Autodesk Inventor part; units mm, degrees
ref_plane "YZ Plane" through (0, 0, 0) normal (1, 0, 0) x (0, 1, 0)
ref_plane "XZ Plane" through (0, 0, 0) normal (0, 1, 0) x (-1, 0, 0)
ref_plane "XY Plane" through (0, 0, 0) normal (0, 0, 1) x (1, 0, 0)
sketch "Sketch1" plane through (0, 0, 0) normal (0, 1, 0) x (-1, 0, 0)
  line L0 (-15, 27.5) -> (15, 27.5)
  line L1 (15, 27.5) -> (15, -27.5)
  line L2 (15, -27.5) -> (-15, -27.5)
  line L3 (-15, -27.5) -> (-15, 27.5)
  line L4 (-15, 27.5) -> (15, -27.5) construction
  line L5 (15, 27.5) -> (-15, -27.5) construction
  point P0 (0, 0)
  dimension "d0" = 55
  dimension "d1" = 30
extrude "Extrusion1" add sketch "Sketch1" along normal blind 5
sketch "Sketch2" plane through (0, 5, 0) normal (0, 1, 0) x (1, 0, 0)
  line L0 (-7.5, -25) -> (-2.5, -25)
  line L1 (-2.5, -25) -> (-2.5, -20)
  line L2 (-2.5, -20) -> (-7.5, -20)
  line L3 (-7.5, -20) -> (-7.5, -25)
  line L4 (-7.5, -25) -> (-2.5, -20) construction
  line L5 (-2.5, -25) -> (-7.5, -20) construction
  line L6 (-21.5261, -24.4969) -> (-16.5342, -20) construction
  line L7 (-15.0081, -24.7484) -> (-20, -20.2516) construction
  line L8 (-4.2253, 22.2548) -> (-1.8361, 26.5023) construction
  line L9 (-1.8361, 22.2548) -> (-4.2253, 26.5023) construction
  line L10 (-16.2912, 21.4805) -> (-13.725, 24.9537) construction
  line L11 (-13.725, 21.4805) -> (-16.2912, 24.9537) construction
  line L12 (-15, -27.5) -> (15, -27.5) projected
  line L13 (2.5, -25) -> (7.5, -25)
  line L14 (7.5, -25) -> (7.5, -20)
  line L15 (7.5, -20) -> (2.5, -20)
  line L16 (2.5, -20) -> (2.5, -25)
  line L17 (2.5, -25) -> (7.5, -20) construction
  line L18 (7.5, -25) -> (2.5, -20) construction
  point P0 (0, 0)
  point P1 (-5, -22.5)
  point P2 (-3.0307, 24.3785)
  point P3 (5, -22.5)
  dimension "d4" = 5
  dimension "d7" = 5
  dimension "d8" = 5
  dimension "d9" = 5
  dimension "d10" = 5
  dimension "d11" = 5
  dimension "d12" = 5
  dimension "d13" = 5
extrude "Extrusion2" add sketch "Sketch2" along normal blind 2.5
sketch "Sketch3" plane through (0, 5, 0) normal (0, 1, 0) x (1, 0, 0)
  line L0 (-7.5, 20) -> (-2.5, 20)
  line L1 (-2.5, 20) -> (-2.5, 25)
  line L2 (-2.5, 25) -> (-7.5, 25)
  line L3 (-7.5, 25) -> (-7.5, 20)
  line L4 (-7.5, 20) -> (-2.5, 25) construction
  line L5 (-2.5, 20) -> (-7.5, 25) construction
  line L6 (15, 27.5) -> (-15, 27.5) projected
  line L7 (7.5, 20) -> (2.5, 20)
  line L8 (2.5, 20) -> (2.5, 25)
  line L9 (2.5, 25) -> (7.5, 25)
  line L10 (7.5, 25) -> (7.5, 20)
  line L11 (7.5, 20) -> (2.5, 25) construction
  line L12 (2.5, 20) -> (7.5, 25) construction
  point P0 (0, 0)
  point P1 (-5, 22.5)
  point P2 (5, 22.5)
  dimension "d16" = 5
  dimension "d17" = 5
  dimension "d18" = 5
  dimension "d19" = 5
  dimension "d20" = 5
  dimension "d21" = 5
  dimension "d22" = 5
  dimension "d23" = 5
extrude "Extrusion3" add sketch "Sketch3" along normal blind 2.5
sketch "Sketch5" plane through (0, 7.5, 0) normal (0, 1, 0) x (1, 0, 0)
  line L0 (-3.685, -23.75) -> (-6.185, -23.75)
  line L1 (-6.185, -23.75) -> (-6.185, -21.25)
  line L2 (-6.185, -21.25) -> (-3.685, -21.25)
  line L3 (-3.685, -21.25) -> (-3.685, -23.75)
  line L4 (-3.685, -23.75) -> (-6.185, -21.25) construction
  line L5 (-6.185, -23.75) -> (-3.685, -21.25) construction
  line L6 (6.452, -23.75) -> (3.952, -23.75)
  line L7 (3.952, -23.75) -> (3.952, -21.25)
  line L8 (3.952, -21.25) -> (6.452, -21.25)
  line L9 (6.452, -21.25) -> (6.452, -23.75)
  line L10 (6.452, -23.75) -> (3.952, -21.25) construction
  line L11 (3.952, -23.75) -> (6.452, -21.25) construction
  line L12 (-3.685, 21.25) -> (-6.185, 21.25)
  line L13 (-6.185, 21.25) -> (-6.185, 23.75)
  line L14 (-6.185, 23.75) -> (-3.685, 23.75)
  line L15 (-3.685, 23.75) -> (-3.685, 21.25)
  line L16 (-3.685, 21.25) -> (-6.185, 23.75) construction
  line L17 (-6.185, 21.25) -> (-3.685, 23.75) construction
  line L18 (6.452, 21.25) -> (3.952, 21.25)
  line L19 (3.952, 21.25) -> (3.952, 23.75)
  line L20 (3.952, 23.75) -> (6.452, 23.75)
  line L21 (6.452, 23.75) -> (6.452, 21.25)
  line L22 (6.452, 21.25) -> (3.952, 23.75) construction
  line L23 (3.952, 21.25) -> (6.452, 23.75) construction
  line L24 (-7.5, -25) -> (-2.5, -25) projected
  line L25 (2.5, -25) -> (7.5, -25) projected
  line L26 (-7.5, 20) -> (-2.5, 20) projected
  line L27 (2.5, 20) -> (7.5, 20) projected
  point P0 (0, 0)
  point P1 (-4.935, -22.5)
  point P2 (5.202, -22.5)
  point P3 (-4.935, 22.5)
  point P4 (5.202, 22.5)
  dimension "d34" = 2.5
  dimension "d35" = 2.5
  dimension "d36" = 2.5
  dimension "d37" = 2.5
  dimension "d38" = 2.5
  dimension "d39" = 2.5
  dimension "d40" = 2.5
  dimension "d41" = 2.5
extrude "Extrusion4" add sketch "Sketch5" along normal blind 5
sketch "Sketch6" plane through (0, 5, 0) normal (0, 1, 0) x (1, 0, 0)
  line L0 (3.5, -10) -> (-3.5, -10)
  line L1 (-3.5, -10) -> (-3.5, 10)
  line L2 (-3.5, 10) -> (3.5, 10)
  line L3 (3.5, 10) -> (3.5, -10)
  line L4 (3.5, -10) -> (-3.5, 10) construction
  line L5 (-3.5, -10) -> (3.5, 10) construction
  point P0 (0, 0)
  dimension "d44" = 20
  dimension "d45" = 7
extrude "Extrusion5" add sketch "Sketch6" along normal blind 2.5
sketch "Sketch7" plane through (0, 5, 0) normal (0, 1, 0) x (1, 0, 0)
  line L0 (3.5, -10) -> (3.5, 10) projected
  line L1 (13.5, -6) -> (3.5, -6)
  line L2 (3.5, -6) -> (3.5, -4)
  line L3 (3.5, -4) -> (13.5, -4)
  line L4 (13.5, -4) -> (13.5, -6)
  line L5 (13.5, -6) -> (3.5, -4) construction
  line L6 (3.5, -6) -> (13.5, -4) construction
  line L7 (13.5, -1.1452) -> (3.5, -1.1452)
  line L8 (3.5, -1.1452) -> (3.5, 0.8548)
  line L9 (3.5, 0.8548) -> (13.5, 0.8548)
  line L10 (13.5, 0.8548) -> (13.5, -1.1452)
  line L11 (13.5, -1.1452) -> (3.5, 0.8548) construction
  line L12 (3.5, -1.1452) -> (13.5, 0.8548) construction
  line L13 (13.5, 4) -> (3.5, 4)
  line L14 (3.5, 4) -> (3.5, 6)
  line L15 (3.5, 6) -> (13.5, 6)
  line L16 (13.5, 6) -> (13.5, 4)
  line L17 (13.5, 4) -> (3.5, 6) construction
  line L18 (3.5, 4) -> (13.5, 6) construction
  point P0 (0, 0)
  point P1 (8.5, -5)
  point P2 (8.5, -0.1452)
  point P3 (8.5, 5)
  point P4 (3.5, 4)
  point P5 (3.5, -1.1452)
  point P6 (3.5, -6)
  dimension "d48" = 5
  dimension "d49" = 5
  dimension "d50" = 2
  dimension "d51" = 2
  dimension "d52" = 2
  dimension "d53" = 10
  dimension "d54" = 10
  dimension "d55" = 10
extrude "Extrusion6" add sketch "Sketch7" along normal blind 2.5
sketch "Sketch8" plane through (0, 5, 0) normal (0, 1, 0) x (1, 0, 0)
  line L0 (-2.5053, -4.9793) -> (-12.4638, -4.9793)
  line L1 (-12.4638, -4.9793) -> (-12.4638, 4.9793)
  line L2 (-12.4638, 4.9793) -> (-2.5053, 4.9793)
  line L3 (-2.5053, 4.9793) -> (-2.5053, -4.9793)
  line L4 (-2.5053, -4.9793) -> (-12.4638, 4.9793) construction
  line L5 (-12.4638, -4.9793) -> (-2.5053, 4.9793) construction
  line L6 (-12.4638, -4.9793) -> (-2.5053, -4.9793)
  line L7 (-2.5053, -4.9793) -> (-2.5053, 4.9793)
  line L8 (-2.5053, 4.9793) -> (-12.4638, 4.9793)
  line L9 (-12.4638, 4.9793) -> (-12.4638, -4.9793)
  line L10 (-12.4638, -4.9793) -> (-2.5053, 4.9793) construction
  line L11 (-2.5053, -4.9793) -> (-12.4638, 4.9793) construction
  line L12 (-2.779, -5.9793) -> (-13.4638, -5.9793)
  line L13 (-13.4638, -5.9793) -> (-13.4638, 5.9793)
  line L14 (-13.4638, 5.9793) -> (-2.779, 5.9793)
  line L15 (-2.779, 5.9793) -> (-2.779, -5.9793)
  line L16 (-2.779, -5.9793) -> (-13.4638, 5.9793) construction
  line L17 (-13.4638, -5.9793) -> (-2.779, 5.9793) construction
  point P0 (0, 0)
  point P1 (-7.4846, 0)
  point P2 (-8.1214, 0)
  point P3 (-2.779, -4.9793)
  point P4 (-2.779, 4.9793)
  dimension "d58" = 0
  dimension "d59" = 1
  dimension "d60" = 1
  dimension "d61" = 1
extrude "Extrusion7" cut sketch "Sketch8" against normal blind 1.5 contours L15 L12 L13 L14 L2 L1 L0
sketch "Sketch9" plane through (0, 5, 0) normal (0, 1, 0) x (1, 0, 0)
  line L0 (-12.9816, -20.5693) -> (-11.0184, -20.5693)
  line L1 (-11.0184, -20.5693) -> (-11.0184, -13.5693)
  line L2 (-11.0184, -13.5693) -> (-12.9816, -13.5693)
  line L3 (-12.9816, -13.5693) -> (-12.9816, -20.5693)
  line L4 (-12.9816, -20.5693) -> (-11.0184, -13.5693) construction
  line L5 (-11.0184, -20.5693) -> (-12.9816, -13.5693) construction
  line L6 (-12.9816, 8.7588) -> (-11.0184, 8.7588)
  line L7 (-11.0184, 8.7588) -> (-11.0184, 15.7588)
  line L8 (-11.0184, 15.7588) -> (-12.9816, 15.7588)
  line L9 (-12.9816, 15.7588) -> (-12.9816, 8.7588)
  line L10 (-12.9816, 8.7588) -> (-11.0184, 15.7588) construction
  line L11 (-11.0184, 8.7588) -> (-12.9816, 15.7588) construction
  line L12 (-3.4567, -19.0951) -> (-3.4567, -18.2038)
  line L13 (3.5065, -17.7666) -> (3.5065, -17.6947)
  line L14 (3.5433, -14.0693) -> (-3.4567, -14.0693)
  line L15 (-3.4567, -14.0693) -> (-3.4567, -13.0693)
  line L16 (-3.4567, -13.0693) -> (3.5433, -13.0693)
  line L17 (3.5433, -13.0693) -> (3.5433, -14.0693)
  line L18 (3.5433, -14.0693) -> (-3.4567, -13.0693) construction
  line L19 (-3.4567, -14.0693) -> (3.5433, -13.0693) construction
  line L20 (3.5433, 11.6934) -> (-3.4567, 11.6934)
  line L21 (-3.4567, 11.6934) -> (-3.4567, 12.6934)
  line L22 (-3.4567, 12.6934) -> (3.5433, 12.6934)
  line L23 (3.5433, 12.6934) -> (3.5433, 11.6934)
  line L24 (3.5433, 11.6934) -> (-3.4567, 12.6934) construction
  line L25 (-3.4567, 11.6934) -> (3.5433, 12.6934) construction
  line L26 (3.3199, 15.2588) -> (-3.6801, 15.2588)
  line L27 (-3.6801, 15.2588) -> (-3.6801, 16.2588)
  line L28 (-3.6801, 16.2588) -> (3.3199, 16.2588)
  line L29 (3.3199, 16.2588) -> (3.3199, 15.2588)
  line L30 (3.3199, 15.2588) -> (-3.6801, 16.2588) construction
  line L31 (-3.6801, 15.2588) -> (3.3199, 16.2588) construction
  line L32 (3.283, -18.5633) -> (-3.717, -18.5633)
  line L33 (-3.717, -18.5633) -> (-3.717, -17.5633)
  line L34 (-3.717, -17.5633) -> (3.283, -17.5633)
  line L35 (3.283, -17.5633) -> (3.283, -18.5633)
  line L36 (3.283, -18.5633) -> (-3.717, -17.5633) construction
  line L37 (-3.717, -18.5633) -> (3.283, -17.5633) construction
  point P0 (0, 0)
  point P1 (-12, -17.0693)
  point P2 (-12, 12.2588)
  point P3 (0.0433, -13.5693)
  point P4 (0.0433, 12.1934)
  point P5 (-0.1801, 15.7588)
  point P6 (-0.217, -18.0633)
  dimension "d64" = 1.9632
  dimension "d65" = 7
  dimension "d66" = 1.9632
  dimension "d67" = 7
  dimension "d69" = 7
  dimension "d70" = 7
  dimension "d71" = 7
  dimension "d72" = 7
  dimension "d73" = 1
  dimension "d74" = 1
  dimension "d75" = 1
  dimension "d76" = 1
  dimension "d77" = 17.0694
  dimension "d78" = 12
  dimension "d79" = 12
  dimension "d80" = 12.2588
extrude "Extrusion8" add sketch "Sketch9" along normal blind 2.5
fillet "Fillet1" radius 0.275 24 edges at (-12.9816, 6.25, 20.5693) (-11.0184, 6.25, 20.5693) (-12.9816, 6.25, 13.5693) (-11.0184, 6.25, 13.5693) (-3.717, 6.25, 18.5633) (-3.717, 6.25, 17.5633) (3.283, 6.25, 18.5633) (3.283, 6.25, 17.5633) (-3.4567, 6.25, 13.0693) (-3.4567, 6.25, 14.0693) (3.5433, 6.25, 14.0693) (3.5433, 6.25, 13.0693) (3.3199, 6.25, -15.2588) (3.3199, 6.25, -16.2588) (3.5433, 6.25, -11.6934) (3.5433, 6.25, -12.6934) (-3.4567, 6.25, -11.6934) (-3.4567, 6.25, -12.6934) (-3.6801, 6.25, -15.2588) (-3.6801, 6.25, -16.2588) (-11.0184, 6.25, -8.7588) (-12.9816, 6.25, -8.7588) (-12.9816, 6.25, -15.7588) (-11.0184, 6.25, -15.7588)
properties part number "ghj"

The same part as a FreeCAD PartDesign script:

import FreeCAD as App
import Part
import Sketcher


def edges_at(feature, points):
    """Names of the edges that pass closest to the given points."""
    edges = feature.Shape.Edges
    near = lambda p: min(range(len(edges)), key=lambda i: edges[i].distToShape(Part.Vertex(*p))[0])
    return sorted({f"Edge{near(p) + 1}" for p in points})

doc = App.newDocument("Part")
params = doc.addObject("Spreadsheet::Sheet", "Params")
for row, (alias, value) in enumerate([
    ("sketch1_width", "30 mm"),
    ("sketch1_height", "55 mm"),
    ("pad1_length", "5 mm"),
    ("sketch2_width", "5 mm"),
    ("pad2_length", "2.5 mm"),
    ("sketch3_width", "5 mm"),
    ("pad3_length", "2.5 mm"),
    ("sketch4_width", "2.5 mm"),
    ("pad4_length", "5 mm"),
    ("sketch5_width", "7 mm"),
    ("sketch5_height", "20 mm"),
    ("pad5_length", "2.5 mm"),
    ("sketch6_width", "10 mm"),
    ("sketch6_height", "2 mm"),
    ("pad6_length", "2.5 mm"),
    ("sketch7_height", "1 mm"),
    ("pocket1_length", "1.5 mm"),
    ("sketch8_width", "7 mm"),
    ("sketch8_height", "1 mm"),
    ("pad7_length", "2.5 mm"),
    ("fillet_radius", "0.275 mm"),
], start=1):
    params.set(f"A{row}", alias)
    params.set(f"B{row}", "=" + value)
    params.setAlias(f"B{row}", alias)

body = doc.addObject("PartDesign::Body", "Body")

# Sketch on XZ plane
sketch1 = body.newObject("Sketcher::SketchObject", "Sketch")
sketch1.AttachmentSupport = (doc.getObject("XZ_Plane"), [""])
sketch1.MapMode = "FlatFace"
sketch1.addGeometry([
    Part.LineSegment(App.Vector(-15, 27.5, 0), App.Vector(15, 27.5, 0)),
    Part.LineSegment(App.Vector(15, 27.5, 0), App.Vector(15, -27.5, 0)),
    Part.LineSegment(App.Vector(15, -27.5, 0), App.Vector(-15, -27.5, 0)),
    Part.LineSegment(App.Vector(-15, -27.5, 0), App.Vector(-15, 27.5, 0)),
], False)
sketch1.addConstraint([
    Sketcher.Constraint("Coincident", 0, 2, 1, 1),
    Sketcher.Constraint("Coincident", 1, 2, 2, 1),
    Sketcher.Constraint("Coincident", 2, 2, 3, 1),
    Sketcher.Constraint("Coincident", 3, 2, 0, 1),
    Sketcher.Constraint("Horizontal", 0),
    Sketcher.Constraint("Vertical", 1),
    Sketcher.Constraint("Horizontal", 2),
    Sketcher.Constraint("Vertical", 3),
    Sketcher.Constraint("Symmetric", 0, 2, 2, 2, -1, 1),
    Sketcher.Constraint("DistanceX", 0, 1, 0, 2, 30.0),
    Sketcher.Constraint("DistanceY", 1, 2, 1, 1, 55.0),
])
sketch1.setExpression("Constraints[9]", "Params.sketch1_width")
sketch1.setExpression("Constraints[10]", "Params.sketch1_height")
pad1 = body.newObject("PartDesign::Pad", "Pad")
pad1.Profile = sketch1
pad1.setExpression("Length", "Params.pad1_length")
pad1.Reversed = True

# Sketch on XZ plane
sketch2 = body.newObject("Sketcher::SketchObject", "Sketch001")
sketch2.AttachmentSupport = (doc.getObject("XZ_Plane"), [""])
sketch2.MapMode = "FlatFace"
sketch2.AttachmentOffset = App.Placement(App.Vector(0, 0, -5), App.Rotation())
sketch2.addGeometry([
    Part.LineSegment(App.Vector(-7.5, 20, 0), App.Vector(-7.5, 25, 0)),  # 0
    Part.LineSegment(App.Vector(-7.5, 25, 0), App.Vector(-2.5, 25, 0)),  # 1
    Part.LineSegment(App.Vector(-2.5, 25, 0), App.Vector(-2.5, 20, 0)),  # 2
    Part.LineSegment(App.Vector(-2.5, 20, 0), App.Vector(-7.5, 20, 0)),  # 3
    Part.LineSegment(App.Vector(2.5, 20, 0), App.Vector(2.5, 25, 0)),  # 4
    Part.LineSegment(App.Vector(2.5, 25, 0), App.Vector(7.5, 25, 0)),  # 5
    Part.LineSegment(App.Vector(7.5, 25, 0), App.Vector(7.5, 20, 0)),  # 6
    Part.LineSegment(App.Vector(7.5, 20, 0), App.Vector(2.5, 20, 0)),  # 7
], False)
sketch2.addConstraint([
    Sketcher.Constraint("Coincident", 0, 2, 1, 1),
    Sketcher.Constraint("Coincident", 1, 2, 2, 1),
    Sketcher.Constraint("Coincident", 2, 2, 3, 1),
    Sketcher.Constraint("Coincident", 3, 2, 0, 1),
    Sketcher.Constraint("Coincident", 4, 2, 5, 1),
    Sketcher.Constraint("Coincident", 5, 2, 6, 1),
    Sketcher.Constraint("Coincident", 6, 2, 7, 1),
    Sketcher.Constraint("Coincident", 7, 2, 4, 1),
    Sketcher.Constraint("Vertical", 0),
    Sketcher.Constraint("Horizontal", 1),
    Sketcher.Constraint("Vertical", 2),
    Sketcher.Constraint("Horizontal", 3),
    Sketcher.Constraint("Vertical", 4),
    Sketcher.Constraint("Horizontal", 5),
    Sketcher.Constraint("Vertical", 6),
    Sketcher.Constraint("Horizontal", 7),
    Sketcher.Constraint("Symmetric", 1, 2, 4, 2, -2),
    Sketcher.Constraint("Symmetric", 3, 2, 6, 2, -2),
    Sketcher.Constraint("Equal", 7, 0),
    Sketcher.Constraint("DistanceX", 1, 1, 1, 2, 5.0),
    Sketcher.Constraint("DistanceX", 1, 2, 4, 2, 5.0),
    Sketcher.Constraint("DistanceY", -1, 1, 0, 2, 25.0),
])
sketch2.setExpression("Constraints[19]", "Params.sketch2_width")
pad2 = body.newObject("PartDesign::Pad", "Pad001")
pad2.Profile = sketch2
pad2.setExpression("Length", "Params.pad2_length")
pad2.Reversed = True

# Sketch on XZ plane
sketch3 = body.newObject("Sketcher::SketchObject", "Sketch002")
sketch3.AttachmentSupport = (doc.getObject("XZ_Plane"), [""])
sketch3.MapMode = "FlatFace"
sketch3.AttachmentOffset = App.Placement(App.Vector(0, 0, -5), App.Rotation())
sketch3.addGeometry([
    Part.LineSegment(App.Vector(-7.5, -25, 0), App.Vector(-7.5, -20, 0)),  # 0
    Part.LineSegment(App.Vector(-7.5, -20, 0), App.Vector(-2.5, -20, 0)),  # 1
    Part.LineSegment(App.Vector(-2.5, -20, 0), App.Vector(-2.5, -25, 0)),  # 2
    Part.LineSegment(App.Vector(-2.5, -25, 0), App.Vector(-7.5, -25, 0)),  # 3
    Part.LineSegment(App.Vector(2.5, -20, 0), App.Vector(7.5, -20, 0)),  # 4
    Part.LineSegment(App.Vector(7.5, -20, 0), App.Vector(7.5, -25, 0)),  # 5
    Part.LineSegment(App.Vector(7.5, -25, 0), App.Vector(2.5, -25, 0)),  # 6
    Part.LineSegment(App.Vector(2.5, -25, 0), App.Vector(2.5, -20, 0)),  # 7
], False)
sketch3.addConstraint([
    Sketcher.Constraint("Coincident", 0, 2, 1, 1),
    Sketcher.Constraint("Coincident", 1, 2, 2, 1),
    Sketcher.Constraint("Coincident", 2, 2, 3, 1),
    Sketcher.Constraint("Coincident", 3, 2, 0, 1),
    Sketcher.Constraint("Coincident", 4, 2, 5, 1),
    Sketcher.Constraint("Coincident", 5, 2, 6, 1),
    Sketcher.Constraint("Coincident", 6, 2, 7, 1),
    Sketcher.Constraint("Coincident", 7, 2, 4, 1),
    Sketcher.Constraint("Vertical", 0),
    Sketcher.Constraint("Horizontal", 1),
    Sketcher.Constraint("Vertical", 2),
    Sketcher.Constraint("Horizontal", 3),
    Sketcher.Constraint("Horizontal", 4),
    Sketcher.Constraint("Vertical", 5),
    Sketcher.Constraint("Horizontal", 6),
    Sketcher.Constraint("Vertical", 7),
    Sketcher.Constraint("Symmetric", 0, 2, 4, 2, -2),
    Sketcher.Constraint("Symmetric", 2, 2, 6, 2, -2),
    Sketcher.Constraint("Equal", 6, 0),
    Sketcher.Constraint("DistanceX", 1, 1, 1, 2, 5.0),
    Sketcher.Constraint("DistanceX", 2, 2, 6, 2, 5.0),
    Sketcher.Constraint("DistanceY", 0, 2, -1, 1, 20.0),
])
sketch3.setExpression("Constraints[19]", "Params.sketch3_width")
pad3 = body.newObject("PartDesign::Pad", "Pad002")
pad3.Profile = sketch3
pad3.setExpression("Length", "Params.pad3_length")
pad3.Reversed = True

# Sketch on XZ plane
sketch4 = body.newObject("Sketcher::SketchObject", "Sketch003")
sketch4.AttachmentSupport = (doc.getObject("XZ_Plane"), [""])
sketch4.MapMode = "FlatFace"
sketch4.AttachmentOffset = App.Placement(App.Vector(0, 0, -7.5), App.Rotation())
sketch4.addGeometry([
    Part.LineSegment(App.Vector(-6.185, 23.75, 0), App.Vector(-3.685, 23.75, 0)),  # 0
    Part.LineSegment(App.Vector(-3.685, 23.75, 0), App.Vector(-3.685, 21.25, 0)),  # 1
    Part.LineSegment(App.Vector(-3.685, 21.25, 0), App.Vector(-6.185, 21.25, 0)),  # 2
    Part.LineSegment(App.Vector(-6.185, 21.25, 0), App.Vector(-6.185, 23.75, 0)),  # 3
    Part.LineSegment(App.Vector(3.952, 23.75, 0), App.Vector(6.452, 23.75, 0)),  # 4
    Part.LineSegment(App.Vector(6.452, 23.75, 0), App.Vector(6.452, 21.25, 0)),  # 5
    Part.LineSegment(App.Vector(6.452, 21.25, 0), App.Vector(3.952, 21.25, 0)),  # 6
    Part.LineSegment(App.Vector(3.952, 21.25, 0), App.Vector(3.952, 23.75, 0)),  # 7
    Part.LineSegment(App.Vector(-6.185, -21.25, 0), App.Vector(-3.685, -21.25, 0)),  # 8
    Part.LineSegment(App.Vector(-3.685, -21.25, 0), App.Vector(-3.685, -23.75, 0)),  # 9
    Part.LineSegment(App.Vector(-3.685, -23.75, 0), App.Vector(-6.185, -23.75, 0)),  # 10
    Part.LineSegment(App.Vector(-6.185, -23.75, 0), App.Vector(-6.185, -21.25, 0)),  # 11
    Part.LineSegment(App.Vector(3.952, -21.25, 0), App.Vector(6.452, -21.25, 0)),  # 12
    Part.LineSegment(App.Vector(6.452, -21.25, 0), App.Vector(6.452, -23.75, 0)),  # 13
    Part.LineSegment(App.Vector(6.452, -23.75, 0), App.Vector(3.952, -23.75, 0)),  # 14
    Part.LineSegment(App.Vector(3.952, -23.75, 0), App.Vector(3.952, -21.25, 0)),  # 15
], False)
sketch4.addConstraint([
    Sketcher.Constraint("Coincident", 0, 2, 1, 1),
    Sketcher.Constraint("Coincident", 1, 2, 2, 1),
    Sketcher.Constraint("Coincident", 2, 2, 3, 1),
    Sketcher.Constraint("Coincident", 3, 2, 0, 1),
    Sketcher.Constraint("Coincident", 4, 2, 5, 1),
    Sketcher.Constraint("Coincident", 5, 2, 6, 1),
    Sketcher.Constraint("Coincident", 6, 2, 7, 1),
    Sketcher.Constraint("Coincident", 7, 2, 4, 1),
    Sketcher.Constraint("Coincident", 8, 2, 9, 1),
    Sketcher.Constraint("Coincident", 9, 2, 10, 1),
    Sketcher.Constraint("Coincident", 10, 2, 11, 1),
    Sketcher.Constraint("Coincident", 11, 2, 8, 1),
    Sketcher.Constraint("Coincident", 12, 2, 13, 1),
    Sketcher.Constraint("Coincident", 13, 2, 14, 1),
    Sketcher.Constraint("Coincident", 14, 2, 15, 1),
    Sketcher.Constraint("Coincident", 15, 2, 12, 1),
    Sketcher.Constraint("Horizontal", 0),
    Sketcher.Constraint("Vertical", 1),
    Sketcher.Constraint("Horizontal", 2),
    Sketcher.Constraint("Vertical", 3),
    Sketcher.Constraint("Horizontal", 4),
    Sketcher.Constraint("Vertical", 5),
    Sketcher.Constraint("Horizontal", 6),
    Sketcher.Constraint("Vertical", 7),
    Sketcher.Constraint("Horizontal", 8),
    Sketcher.Constraint("Vertical", 9),
    Sketcher.Constraint("Horizontal", 10),
    Sketcher.Constraint("Vertical", 11),
    Sketcher.Constraint("Horizontal", 12),
    Sketcher.Constraint("Vertical", 13),
    Sketcher.Constraint("Horizontal", 14),
    Sketcher.Constraint("Vertical", 15),
    Sketcher.Constraint("Symmetric", 1, 2, 8, 2, -1),
    Sketcher.Constraint("Symmetric", 3, 2, 10, 2, -1),
    Sketcher.Constraint("Symmetric", 5, 2, 12, 2, -1),
    Sketcher.Constraint("Symmetric", 7, 2, 14, 2, -1),
    Sketcher.Constraint("Horizontal", 3, 2, 4, 2),
    Sketcher.Constraint("Horizontal", 2, 2, 5, 2),
    Sketcher.Constraint("Equal", 2, 4),
    Sketcher.Constraint("Equal", 14, 1),
    Sketcher.Constraint("DistanceX", 0, 1, 0, 2, 2.5),
    Sketcher.Constraint("DistanceY", 8, 2, 0, 2, 45.0),
    Sketcher.Constraint("DistanceX", 0, 2, -1, 1, 3.685),
    Sketcher.Constraint("DistanceX", -1, 1, 4, 2, 6.452),
])
sketch4.setExpression("Constraints[40]", "Params.sketch4_width")
pad4 = body.newObject("PartDesign::Pad", "Pad003")
pad4.Profile = sketch4
pad4.setExpression("Length", "Params.pad4_length")
pad4.Reversed = True

# Sketch on XZ plane
sketch5 = body.newObject("Sketcher::SketchObject", "Sketch004")
sketch5.AttachmentSupport = (doc.getObject("XZ_Plane"), [""])
sketch5.MapMode = "FlatFace"
sketch5.AttachmentOffset = App.Placement(App.Vector(0, 0, -5), App.Rotation())
sketch5.addGeometry([
    Part.LineSegment(App.Vector(-3.5, 10, 0), App.Vector(3.5, 10, 0)),
    Part.LineSegment(App.Vector(3.5, 10, 0), App.Vector(3.5, -10, 0)),
    Part.LineSegment(App.Vector(3.5, -10, 0), App.Vector(-3.5, -10, 0)),
    Part.LineSegment(App.Vector(-3.5, -10, 0), App.Vector(-3.5, 10, 0)),
], False)
sketch5.addConstraint([
    Sketcher.Constraint("Coincident", 0, 2, 1, 1),
    Sketcher.Constraint("Coincident", 1, 2, 2, 1),
    Sketcher.Constraint("Coincident", 2, 2, 3, 1),
    Sketcher.Constraint("Coincident", 3, 2, 0, 1),
    Sketcher.Constraint("Horizontal", 0),
    Sketcher.Constraint("Vertical", 1),
    Sketcher.Constraint("Horizontal", 2),
    Sketcher.Constraint("Vertical", 3),
    Sketcher.Constraint("Symmetric", 0, 2, 2, 2, -1, 1),
    Sketcher.Constraint("DistanceX", 0, 1, 0, 2, 7.0),
    Sketcher.Constraint("DistanceY", 1, 2, 1, 1, 20.0),
])
sketch5.setExpression("Constraints[9]", "Params.sketch5_width")
sketch5.setExpression("Constraints[10]", "Params.sketch5_height")
pad5 = body.newObject("PartDesign::Pad", "Pad004")
pad5.Profile = sketch5
pad5.setExpression("Length", "Params.pad5_length")
pad5.Reversed = True

# Sketch on XZ plane
sketch6 = body.newObject("Sketcher::SketchObject", "Sketch005")
sketch6.AttachmentSupport = (doc.getObject("XZ_Plane"), [""])
sketch6.MapMode = "FlatFace"
sketch6.AttachmentOffset = App.Placement(App.Vector(0, 0, -5), App.Rotation())
sketch6.addGeometry([
    Part.LineSegment(App.Vector(3.5, -6, 0), App.Vector(3.5, -4, 0)),  # 0
    Part.LineSegment(App.Vector(3.5, -4, 0), App.Vector(13.5, -4, 0)),  # 1
    Part.LineSegment(App.Vector(13.5, -4, 0), App.Vector(13.5, -6, 0)),  # 2
    Part.LineSegment(App.Vector(13.5, -6, 0), App.Vector(3.5, -6, 0)),  # 3
    Part.LineSegment(App.Vector(3.5, -0.8548, 0), App.Vector(3.5, 1.1452, 0)),  # 4
    Part.LineSegment(App.Vector(3.5, 1.1452, 0), App.Vector(13.5, 1.1452, 0)),  # 5
    Part.LineSegment(App.Vector(13.5, 1.1452, 0), App.Vector(13.5, -0.8548, 0)),  # 6
    Part.LineSegment(App.Vector(13.5, -0.8548, 0), App.Vector(3.5, -0.8548, 0)),  # 7
    Part.LineSegment(App.Vector(3.5, 4, 0), App.Vector(3.5, 6, 0)),  # 8
    Part.LineSegment(App.Vector(3.5, 6, 0), App.Vector(13.5, 6, 0)),  # 9
    Part.LineSegment(App.Vector(13.5, 6, 0), App.Vector(13.5, 4, 0)),  # 10
    Part.LineSegment(App.Vector(13.5, 4, 0), App.Vector(3.5, 4, 0)),  # 11
], False)
sketch6.addConstraint([
    Sketcher.Constraint("Coincident", 0, 2, 1, 1),
    Sketcher.Constraint("Coincident", 1, 2, 2, 1),
    Sketcher.Constraint("Coincident", 2, 2, 3, 1),
    Sketcher.Constraint("Coincident", 3, 2, 0, 1),
    Sketcher.Constraint("Coincident", 4, 2, 5, 1),
    Sketcher.Constraint("Coincident", 5, 2, 6, 1),
    Sketcher.Constraint("Coincident", 6, 2, 7, 1),
    Sketcher.Constraint("Coincident", 7, 2, 4, 1),
    Sketcher.Constraint("Coincident", 8, 2, 9, 1),
    Sketcher.Constraint("Coincident", 9, 2, 10, 1),
    Sketcher.Constraint("Coincident", 10, 2, 11, 1),
    Sketcher.Constraint("Coincident", 11, 2, 8, 1),
    Sketcher.Constraint("Vertical", 0),
    Sketcher.Constraint("Horizontal", 1),
    Sketcher.Constraint("Vertical", 2),
    Sketcher.Constraint("Horizontal", 3),
    Sketcher.Constraint("Vertical", 4),
    Sketcher.Constraint("Horizontal", 5),
    Sketcher.Constraint("Vertical", 6),
    Sketcher.Constraint("Horizontal", 7),
    Sketcher.Constraint("Vertical", 8),
    Sketcher.Constraint("Horizontal", 9),
    Sketcher.Constraint("Vertical", 10),
    Sketcher.Constraint("Horizontal", 11),
    Sketcher.Constraint("Symmetric", 3, 2, 8, 2, -1),
    Sketcher.Constraint("Symmetric", 1, 2, 10, 2, -1),
    Sketcher.Constraint("Vertical", 3, 2, 4, 2),
    Sketcher.Constraint("Vertical", 2, 2, 5, 2),
    Sketcher.Constraint("Equal", 2, 4),
    Sketcher.Constraint("DistanceX", 1, 1, 1, 2, 10.0),
    Sketcher.Constraint("DistanceY", 0, 1, 0, 2, 2.0),
    Sketcher.Constraint("DistanceY", 0, 2, 8, 2, 10.0),
    Sketcher.Constraint("DistanceX", -1, 1, 0, 2, 3.5),
    Sketcher.Constraint("DistanceY", -1, 1, 4, 2, 1.1452),
])
sketch6.setExpression("Constraints[29]", "Params.sketch6_width")
sketch6.setExpression("Constraints[30]", "Params.sketch6_height")
pad6 = body.newObject("PartDesign::Pad", "Pad005")
pad6.Profile = sketch6
pad6.setExpression("Length", "Params.pad6_length")
pad6.Reversed = True

# Sketch on XZ plane
sketch7 = body.newObject("Sketcher::SketchObject", "Sketch006")
sketch7.AttachmentSupport = (doc.getObject("XZ_Plane"), [""])
sketch7.MapMode = "FlatFace"
sketch7.AttachmentOffset = App.Placement(App.Vector(0, 0, -5), App.Rotation())
sketch7.addGeometry([
    Part.LineSegment(App.Vector(-2.779, 5.9793, 0), App.Vector(-2.779, 4.9793, 0)),  # 0
    Part.LineSegment(App.Vector(-2.779, 4.9793, 0), App.Vector(-12.4638, 4.9793, 0)),  # 1
    Part.LineSegment(App.Vector(-12.4638, 4.9793, 0), App.Vector(-12.4638, -4.9793, 0)),  # 2
    Part.LineSegment(App.Vector(-12.4638, -4.9793, 0), App.Vector(-2.779, -4.9793, 0)),  # 3
    Part.LineSegment(App.Vector(-2.779, -4.9793, 0), App.Vector(-2.779, -5.9793, 0)),  # 4
    Part.LineSegment(App.Vector(-2.779, -5.9793, 0), App.Vector(-13.4638, -5.9793, 0)),  # 5
    Part.LineSegment(App.Vector(-13.4638, -5.9793, 0), App.Vector(-13.4638, 5.9793, 0)),  # 6
    Part.LineSegment(App.Vector(-13.4638, 5.9793, 0), App.Vector(-2.779, 5.9793, 0)),  # 7
], False)
sketch7.addConstraint([
    Sketcher.Constraint("Coincident", 0, 2, 1, 1),
    Sketcher.Constraint("Coincident", 1, 2, 2, 1),
    Sketcher.Constraint("Coincident", 2, 2, 3, 1),
    Sketcher.Constraint("Coincident", 3, 2, 4, 1),
    Sketcher.Constraint("Coincident", 4, 2, 5, 1),
    Sketcher.Constraint("Coincident", 5, 2, 6, 1),
    Sketcher.Constraint("Coincident", 6, 2, 7, 1),
    Sketcher.Constraint("Coincident", 7, 2, 0, 1),
    Sketcher.Constraint("Vertical", 0),
    Sketcher.Constraint("Horizontal", 1),
    Sketcher.Constraint("Vertical", 2),
    Sketcher.Constraint("Horizontal", 3),
    Sketcher.Constraint("Vertical", 4),
    Sketcher.Constraint("Horizontal", 5),
    Sketcher.Constraint("Vertical", 6),
    Sketcher.Constraint("Horizontal", 7),
    Sketcher.Constraint("Symmetric", 0, 2, 3, 2, -1),
    Sketcher.Constraint("Equal", 0, 4),
    Sketcher.Constraint("DistanceY", 0, 2, 0, 1, 1.0),
    Sketcher.Constraint("DistanceX", 5, 2, 2, 2, 1.0),
    Sketcher.Constraint("DistanceX", 1, 2, 1, 1, 9.6848),
    Sketcher.Constraint("DistanceY", 2, 2, 2, 1, 9.9586),
    Sketcher.Constraint("DistanceX", 0, 2, -1, 1, 2.779),
])
sketch7.setExpression("Constraints[18]", "Params.sketch7_height")
pocket1 = body.newObject("PartDesign::Pocket", "Pocket")
pocket1.Profile = sketch7
pocket1.setExpression("Length", "Params.pocket1_length")
pocket1.Reversed = True

# Sketch on XZ plane
sketch8 = body.newObject("Sketcher::SketchObject", "Sketch007")
sketch8.AttachmentSupport = (doc.getObject("XZ_Plane"), [""])
sketch8.MapMode = "FlatFace"
sketch8.AttachmentOffset = App.Placement(App.Vector(0, 0, -5), App.Rotation())
sketch8.addGeometry([
    Part.LineSegment(App.Vector(-12.9816, 13.5693, 0), App.Vector(-12.9816, 20.5693, 0)),  # 0
    Part.LineSegment(App.Vector(-12.9816, 20.5693, 0), App.Vector(-11.0184, 20.5693, 0)),  # 1
    Part.LineSegment(App.Vector(-11.0184, 20.5693, 0), App.Vector(-11.0184, 13.5693, 0)),  # 2
    Part.LineSegment(App.Vector(-11.0184, 13.5693, 0), App.Vector(-12.9816, 13.5693, 0)),  # 3
    Part.LineSegment(App.Vector(-12.9816, -15.7588, 0), App.Vector(-12.9816, -8.7588, 0)),  # 4
    Part.LineSegment(App.Vector(-12.9816, -8.7588, 0), App.Vector(-11.0184, -8.7588, 0)),  # 5
    Part.LineSegment(App.Vector(-11.0184, -8.7588, 0), App.Vector(-11.0184, -15.7588, 0)),  # 6
    Part.LineSegment(App.Vector(-11.0184, -15.7588, 0), App.Vector(-12.9816, -15.7588, 0)),  # 7
    Part.LineSegment(App.Vector(-3.4567, 14.0693, 0), App.Vector(3.5433, 14.0693, 0)),  # 8
    Part.LineSegment(App.Vector(3.5433, 14.0693, 0), App.Vector(3.5433, 13.0693, 0)),  # 9
    Part.LineSegment(App.Vector(3.5433, 13.0693, 0), App.Vector(-3.4567, 13.0693, 0)),  # 10
    Part.LineSegment(App.Vector(-3.4567, 13.0693, 0), App.Vector(-3.4567, 14.0693, 0)),  # 11
    Part.LineSegment(App.Vector(-3.4567, -11.6934, 0), App.Vector(3.5433, -11.6934, 0)),  # 12
    Part.LineSegment(App.Vector(3.5433, -11.6934, 0), App.Vector(3.5433, -12.6934, 0)),  # 13
    Part.LineSegment(App.Vector(3.5433, -12.6934, 0), App.Vector(-3.4567, -12.6934, 0)),  # 14
    Part.LineSegment(App.Vector(-3.4567, -12.6934, 0), App.Vector(-3.4567, -11.6934, 0)),  # 15
    Part.LineSegment(App.Vector(-3.6801, -15.2588, 0), App.Vector(3.3199, -15.2588, 0)),  # 16
    Part.LineSegment(App.Vector(3.3199, -15.2588, 0), App.Vector(3.3199, -16.2588, 0)),  # 17
    Part.LineSegment(App.Vector(3.3199, -16.2588, 0), App.Vector(-3.6801, -16.2588, 0)),  # 18
    Part.LineSegment(App.Vector(-3.6801, -16.2588, 0), App.Vector(-3.6801, -15.2588, 0)),  # 19
    Part.LineSegment(App.Vector(-3.717, 18.5633, 0), App.Vector(3.283, 18.5633, 0)),  # 20
    Part.LineSegment(App.Vector(3.283, 18.5633, 0), App.Vector(3.283, 17.5633, 0)),  # 21
    Part.LineSegment(App.Vector(3.283, 17.5633, 0), App.Vector(-3.717, 17.5633, 0)),  # 22
    Part.LineSegment(App.Vector(-3.717, 17.5633, 0), App.Vector(-3.717, 18.5633, 0)),  # 23
], False)
sketch8.addConstraint([
    Sketcher.Constraint("Coincident", 0, 2, 1, 1),
    Sketcher.Constraint("Coincident", 1, 2, 2, 1),
    Sketcher.Constraint("Coincident", 2, 2, 3, 1),
    Sketcher.Constraint("Coincident", 3, 2, 0, 1),
    Sketcher.Constraint("Coincident", 4, 2, 5, 1),
    Sketcher.Constraint("Coincident", 5, 2, 6, 1),
    Sketcher.Constraint("Coincident", 6, 2, 7, 1),
    Sketcher.Constraint("Coincident", 7, 2, 4, 1),
    Sketcher.Constraint("Coincident", 8, 2, 9, 1),
    Sketcher.Constraint("Coincident", 9, 2, 10, 1),
    Sketcher.Constraint("Coincident", 10, 2, 11, 1),
    Sketcher.Constraint("Coincident", 11, 2, 8, 1),
    Sketcher.Constraint("Coincident", 12, 2, 13, 1),
    Sketcher.Constraint("Coincident", 13, 2, 14, 1),
    Sketcher.Constraint("Coincident", 14, 2, 15, 1),
    Sketcher.Constraint("Coincident", 15, 2, 12, 1),
    Sketcher.Constraint("Coincident", 16, 2, 17, 1),
    Sketcher.Constraint("Coincident", 17, 2, 18, 1),
    Sketcher.Constraint("Coincident", 18, 2, 19, 1),
    Sketcher.Constraint("Coincident", 19, 2, 16, 1),
    Sketcher.Constraint("Coincident", 20, 2, 21, 1),
    Sketcher.Constraint("Coincident", 21, 2, 22, 1),
    Sketcher.Constraint("Coincident", 22, 2, 23, 1),
    Sketcher.Constraint("Coincident", 23, 2, 20, 1),
    Sketcher.Constraint("Vertical", 0),
    Sketcher.Constraint("Horizontal", 1),
    Sketcher.Constraint("Vertical", 2),
    Sketcher.Constraint("Horizontal", 3),
    Sketcher.Constraint("Vertical", 4),
    Sketcher.Constraint("Horizontal", 5),
    Sketcher.Constraint("Vertical", 6),
    Sketcher.Constraint("Horizontal", 7),
    Sketcher.Constraint("Horizontal", 8),
    Sketcher.Constraint("Vertical", 9),
    Sketcher.Constraint("Horizontal", 10),
    Sketcher.Constraint("Vertical", 11),
    Sketcher.Constraint("Horizontal", 12),
    Sketcher.Constraint("Vertical", 13),
    Sketcher.Constraint("Horizontal", 14),
    Sketcher.Constraint("Vertical", 15),
    Sketcher.Constraint("Horizontal", 16),
    Sketcher.Constraint("Vertical", 17),
    Sketcher.Constraint("Horizontal", 18),
    Sketcher.Constraint("Vertical", 19),
    Sketcher.Constraint("Horizontal", 20),
    Sketcher.Constraint("Vertical", 21),
    Sketcher.Constraint("Horizontal", 22),
    Sketcher.Constraint("Vertical", 23),
    Sketcher.Constraint("Vertical", 3, 2, 4, 2),
    Sketcher.Constraint("Vertical", 2, 2, 5, 2),
    Sketcher.Constraint("Vertical", 9, 2, 12, 2),
    Sketcher.Constraint("Vertical", 11, 2, 14, 2),
    Sketcher.Constraint("Equal", 14, 16),
    Sketcher.Constraint("Equal", 18, 20),
    Sketcher.Constraint("Equal", 22, 0),
    Sketcher.Constraint("Equal", 2, 4),
    Sketcher.Constraint("Equal", 11, 13),
    Sketcher.Constraint("Equal", 15, 17),
    Sketcher.Constraint("Equal", 19, 21),
    Sketcher.Constraint("DistanceX", 8, 1, 8, 2, 7.0),
    Sketcher.Constraint("DistanceY", 9, 2, 9, 1, 1.0),
    Sketcher.Constraint("DistanceX", 1, 1, 1, 2, 1.9632),
    Sketcher.Constraint("DistanceY", 2, 2, 8, 2, 0.5),
    Sketcher.Constraint("DistanceY", 6, 2, 16, 2, 0.5),
    Sketcher.Constraint("DistanceX", -1, 1, 16, 2, 3.32),
    Sketcher.Constraint("DistanceX", -1, 1, 20, 2, 3.283),
    Sketcher.Constraint("DistanceY", 4, 2, 3, 2, 22.328),
    Sketcher.Constraint("DistanceX", 3, 2, 8, 2, 16.525),
    Sketcher.Constraint("DistanceY", 8, 2, 20, 2, 4.494),
    Sketcher.Constraint("DistanceX", 0, 2, -1, 1, 12.9816),
    Sketcher.Constraint("DistanceY", -1, 1, 0, 2, 20.5693),
    Sketcher.Constraint("DistanceY", 12, 2, -1, 1, 11.6934),
])
sketch8.setExpression("Constraints[59]", "Params.sketch8_width")
sketch8.setExpression("Constraints[60]", "Params.sketch8_height")
pad7 = body.newObject("PartDesign::Pad", "Pad006")
pad7.Profile = sketch8
pad7.setExpression("Length", "Params.pad7_length")
pad7.Reversed = True
doc.recompute()

fillet = body.newObject("PartDesign::Fillet", "Fillet")
fillet.Base = (pad7, edges_at(pad7, [
    (-12.982, 6.25, 20.569),
    (-11.018, 6.25, 20.569),
    (-12.982, 6.25, 13.569),
    (-11.018, 6.25, 13.569),
    (-3.717, 6.25, 18.563),
    (-3.717, 6.25, 17.563),
    (3.283, 6.25, 18.563),
    (3.283, 6.25, 17.563),
    (-3.457, 6.25, 13.069),
    (-3.457, 6.25, 14.069),
    (3.543, 6.25, 14.069),
    (3.543, 6.25, 13.069),
    (3.32, 6.25, -15.259),
    (3.32, 6.25, -16.259),
    (3.543, 6.25, -11.693),
    (3.543, 6.25, -12.693),
    (-3.457, 6.25, -11.693),
    (-3.457, 6.25, -12.693),
    (-3.68, 6.25, -15.259),
    (-3.68, 6.25, -16.259),
    (-11.018, 6.25, -8.759),
    (-12.982, 6.25, -8.759),
    (-12.982, 6.25, -15.759),
    (-11.018, 6.25, -15.759),
]))
fillet.setExpression("Radius", "Params.fillet_radius")

doc.recompute()
